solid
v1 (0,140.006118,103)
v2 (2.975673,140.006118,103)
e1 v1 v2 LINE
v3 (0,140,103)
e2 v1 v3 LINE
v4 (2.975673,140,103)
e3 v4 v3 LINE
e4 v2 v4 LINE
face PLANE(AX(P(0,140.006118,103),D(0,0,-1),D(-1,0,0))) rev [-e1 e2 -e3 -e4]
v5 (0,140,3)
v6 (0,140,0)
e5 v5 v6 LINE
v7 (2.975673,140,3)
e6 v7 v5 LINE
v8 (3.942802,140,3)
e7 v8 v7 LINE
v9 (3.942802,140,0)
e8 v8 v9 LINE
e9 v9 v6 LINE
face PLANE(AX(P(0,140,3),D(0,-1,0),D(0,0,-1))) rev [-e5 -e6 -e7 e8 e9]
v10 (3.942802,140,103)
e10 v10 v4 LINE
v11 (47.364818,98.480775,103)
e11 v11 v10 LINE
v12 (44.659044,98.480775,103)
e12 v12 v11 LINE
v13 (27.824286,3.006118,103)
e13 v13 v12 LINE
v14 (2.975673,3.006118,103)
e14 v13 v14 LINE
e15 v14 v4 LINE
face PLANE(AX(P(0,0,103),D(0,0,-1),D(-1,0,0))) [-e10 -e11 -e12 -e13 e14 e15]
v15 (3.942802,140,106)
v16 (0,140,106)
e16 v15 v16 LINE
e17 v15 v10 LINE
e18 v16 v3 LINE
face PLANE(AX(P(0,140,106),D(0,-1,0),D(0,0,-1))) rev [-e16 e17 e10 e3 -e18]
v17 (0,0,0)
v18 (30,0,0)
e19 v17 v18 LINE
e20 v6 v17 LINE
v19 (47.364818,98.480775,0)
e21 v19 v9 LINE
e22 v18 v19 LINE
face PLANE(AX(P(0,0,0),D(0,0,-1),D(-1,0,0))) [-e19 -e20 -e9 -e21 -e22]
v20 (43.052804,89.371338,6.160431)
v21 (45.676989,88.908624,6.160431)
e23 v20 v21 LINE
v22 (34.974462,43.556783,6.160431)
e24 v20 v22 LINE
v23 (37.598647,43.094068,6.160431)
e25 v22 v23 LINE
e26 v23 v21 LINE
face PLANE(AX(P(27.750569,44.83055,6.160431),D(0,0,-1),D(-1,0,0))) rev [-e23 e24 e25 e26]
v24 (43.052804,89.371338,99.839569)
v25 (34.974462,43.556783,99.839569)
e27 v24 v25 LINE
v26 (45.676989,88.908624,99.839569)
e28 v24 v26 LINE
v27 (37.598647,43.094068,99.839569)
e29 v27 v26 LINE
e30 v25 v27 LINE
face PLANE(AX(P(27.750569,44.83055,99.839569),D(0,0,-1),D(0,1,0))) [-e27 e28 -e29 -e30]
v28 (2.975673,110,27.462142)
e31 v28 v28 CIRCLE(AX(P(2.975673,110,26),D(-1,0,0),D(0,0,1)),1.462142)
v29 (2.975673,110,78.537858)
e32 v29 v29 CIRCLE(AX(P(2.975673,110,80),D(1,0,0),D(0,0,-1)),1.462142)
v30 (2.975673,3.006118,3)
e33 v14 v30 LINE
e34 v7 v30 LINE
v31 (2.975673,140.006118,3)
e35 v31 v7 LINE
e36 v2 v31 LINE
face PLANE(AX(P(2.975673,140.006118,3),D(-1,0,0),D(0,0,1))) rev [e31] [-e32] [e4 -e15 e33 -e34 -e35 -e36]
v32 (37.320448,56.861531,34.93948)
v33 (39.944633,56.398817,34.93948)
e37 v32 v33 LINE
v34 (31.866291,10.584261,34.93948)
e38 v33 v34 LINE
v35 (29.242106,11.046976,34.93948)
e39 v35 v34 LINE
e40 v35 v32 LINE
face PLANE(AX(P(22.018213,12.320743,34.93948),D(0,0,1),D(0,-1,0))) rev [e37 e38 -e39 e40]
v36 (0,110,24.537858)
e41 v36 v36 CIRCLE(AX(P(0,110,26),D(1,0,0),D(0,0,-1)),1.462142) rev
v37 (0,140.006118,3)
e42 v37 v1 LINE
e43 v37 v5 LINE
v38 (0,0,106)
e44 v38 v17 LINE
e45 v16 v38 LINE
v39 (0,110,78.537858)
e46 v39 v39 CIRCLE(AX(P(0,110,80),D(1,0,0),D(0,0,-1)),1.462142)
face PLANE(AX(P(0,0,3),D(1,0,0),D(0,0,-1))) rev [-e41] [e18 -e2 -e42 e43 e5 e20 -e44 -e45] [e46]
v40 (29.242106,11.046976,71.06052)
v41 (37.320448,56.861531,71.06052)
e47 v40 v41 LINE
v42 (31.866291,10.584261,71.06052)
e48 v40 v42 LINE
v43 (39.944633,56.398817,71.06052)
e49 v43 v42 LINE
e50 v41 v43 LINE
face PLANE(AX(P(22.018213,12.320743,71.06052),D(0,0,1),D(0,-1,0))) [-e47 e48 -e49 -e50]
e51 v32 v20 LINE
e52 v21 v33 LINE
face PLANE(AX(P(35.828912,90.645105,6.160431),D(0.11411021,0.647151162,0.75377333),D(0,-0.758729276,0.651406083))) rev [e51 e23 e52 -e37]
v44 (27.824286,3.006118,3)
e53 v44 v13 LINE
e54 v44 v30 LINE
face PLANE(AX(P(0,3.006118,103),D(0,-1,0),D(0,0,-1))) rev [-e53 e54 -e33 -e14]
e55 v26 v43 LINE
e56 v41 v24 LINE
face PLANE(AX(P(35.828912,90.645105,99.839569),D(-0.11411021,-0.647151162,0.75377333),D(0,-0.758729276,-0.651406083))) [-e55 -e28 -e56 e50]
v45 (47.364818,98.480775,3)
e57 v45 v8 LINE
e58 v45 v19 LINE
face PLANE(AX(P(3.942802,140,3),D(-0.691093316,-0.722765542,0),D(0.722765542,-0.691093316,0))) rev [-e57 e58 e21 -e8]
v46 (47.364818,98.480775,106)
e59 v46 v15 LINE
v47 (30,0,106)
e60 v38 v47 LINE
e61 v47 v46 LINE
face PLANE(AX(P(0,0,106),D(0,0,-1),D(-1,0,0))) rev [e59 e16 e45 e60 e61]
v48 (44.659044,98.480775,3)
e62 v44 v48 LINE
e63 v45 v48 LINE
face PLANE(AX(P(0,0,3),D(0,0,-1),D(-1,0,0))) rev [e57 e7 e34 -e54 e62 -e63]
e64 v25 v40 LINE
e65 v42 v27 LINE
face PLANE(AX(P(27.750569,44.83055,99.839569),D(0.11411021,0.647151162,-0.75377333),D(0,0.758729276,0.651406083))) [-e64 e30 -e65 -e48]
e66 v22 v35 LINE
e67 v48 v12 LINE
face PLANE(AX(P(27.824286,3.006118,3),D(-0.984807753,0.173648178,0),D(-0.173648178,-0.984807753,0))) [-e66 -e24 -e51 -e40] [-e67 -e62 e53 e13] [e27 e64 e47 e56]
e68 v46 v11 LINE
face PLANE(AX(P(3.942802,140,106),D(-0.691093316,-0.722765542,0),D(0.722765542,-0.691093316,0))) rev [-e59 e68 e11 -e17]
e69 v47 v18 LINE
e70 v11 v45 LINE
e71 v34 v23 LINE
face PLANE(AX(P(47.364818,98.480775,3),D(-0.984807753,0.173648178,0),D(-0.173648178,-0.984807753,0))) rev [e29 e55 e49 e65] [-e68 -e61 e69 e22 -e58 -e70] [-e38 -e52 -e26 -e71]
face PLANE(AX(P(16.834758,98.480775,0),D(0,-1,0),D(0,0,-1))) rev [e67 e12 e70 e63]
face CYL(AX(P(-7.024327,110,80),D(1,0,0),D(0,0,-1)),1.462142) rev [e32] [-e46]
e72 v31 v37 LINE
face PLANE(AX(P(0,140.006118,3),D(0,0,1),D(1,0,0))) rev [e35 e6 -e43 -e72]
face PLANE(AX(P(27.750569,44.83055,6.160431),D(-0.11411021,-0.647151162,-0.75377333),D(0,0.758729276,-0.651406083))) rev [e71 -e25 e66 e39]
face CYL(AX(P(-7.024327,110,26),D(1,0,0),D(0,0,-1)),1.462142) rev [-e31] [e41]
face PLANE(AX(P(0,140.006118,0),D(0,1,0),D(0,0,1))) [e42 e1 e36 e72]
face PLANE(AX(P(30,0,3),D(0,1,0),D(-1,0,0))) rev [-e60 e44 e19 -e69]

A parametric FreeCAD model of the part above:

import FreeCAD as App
import Part
import Sketcher
Q = App.Units.Quantity


def add_polygon(sketch, points):
    """Adds a closed chain of lines whose ends are joined by coincident constraints."""
    first, n = sketch.GeometryCount, len(points)
    for a, b in zip(points, points[1:] + points[:1]):
        sketch.addGeometry(Part.LineSegment(App.Vector(*a, 0), App.Vector(*b, 0)), False)
    for i in range(n):
        sketch.addConstraint(Sketcher.Constraint("Coincident", first + i, 2, first + (i + 1) % n, 1))

doc = App.newDocument("Part")
body = doc.addObject("PartDesign::Body", "Body")

sketch1 = body.newObject("Sketcher::SketchObject", "Sketch")
sketch1.AttachmentSupport = (doc.getObject("XY_Plane"), [""])
sketch1.MapMode = "FlatFace"
add_polygon(sketch1, [(0, 140), (0, 0), (30, 0), (47.4, 98.5), (3.9, 140)])
sketch1.addConstraint([
    Sketcher.Constraint("Vertical", 0),
    Sketcher.Constraint("Horizontal", 1),
    Sketcher.Constraint("Horizontal", 4),
    Sketcher.Constraint("Coincident", 0, 2, -1, 1),
    Sketcher.Constraint("DistanceX", 1, 1, 1, 2, Q("30 mm")),
    Sketcher.Constraint("DistanceY", 0, 2, 0, 1, Q("140 mm")),
    Sketcher.Constraint("Angle", 2, Q("80 deg")),
    Sketcher.Constraint("Distance", 2, Q("100 mm")),
    Sketcher.Constraint("DistanceX", 4, 2, 4, 1, Q("3.942802 mm")),
])
pad1 = body.newObject("PartDesign::Pad", "Pad")
pad1.Profile = sketch1
pad1.Length = 3

sketch2 = body.newObject("Sketcher::SketchObject", "Sketch001")
sketch2.AttachmentSupport = (doc.getObject("XY_Plane"), [""])
sketch2.MapMode = "FlatFace"
sketch2.AttachmentOffset = App.Placement(App.Vector(0, 0, 3), App.Rotation())
add_polygon(sketch2, [(0, 3), (0, 0), (30, 0), (30.5, 3)])
sketch2.addConstraint([
    Sketcher.Constraint("Vertical", 0),
    Sketcher.Constraint("Horizontal", 1),
    Sketcher.Constraint("Horizontal", 3),
    Sketcher.Constraint("Coincident", 0, 2, -1, 1),
    Sketcher.Constraint("DistanceX", 1, 1, 1, 2, Q("30 mm")),
    Sketcher.Constraint("Angle", 2, Q("80 deg")),
    Sketcher.Constraint("DistanceX", 3, 2, 3, 1, Q("30.53006 mm")),
])
pad2 = body.newObject("PartDesign::Pad", "Pad001")
pad2.Profile = sketch2
pad2.Length = 100
doc.recompute()

linearpattern = body.newObject("PartDesign::LinearPattern", "LinearPattern")
linearpattern.Originals = [pad1]
linearpattern.Direction = (doc.getObject("Z_Axis"), [""])
linearpattern.Mode = "offset"
linearpattern.Offset = 103
linearpattern.Occurrences = 2
body.Tip = linearpattern

sketch3 = body.newObject("Sketcher::SketchObject", "Sketch002")
sketch3.AttachmentSupport = (doc.getObject("XZ_Plane"), [""])
sketch3.MapMode = "FlatFace"
sketch3.AttachmentOffset = App.Placement(App.Vector(0, 0, -3.006118), App.Rotation())
add_polygon(sketch3, [(0, 3), (0, 103), (3, 103), (3, 3)])
sketch3.addConstraint([
    Sketcher.Constraint("Vertical", 0),
    Sketcher.Constraint("Horizontal", 1),
    Sketcher.Constraint("Vertical", 2),
    Sketcher.Constraint("Horizontal", 3),
    Sketcher.Constraint("PointOnObject", 0, 2, -2),
    Sketcher.Constraint("DistanceY", 0, 1, 0, 2, Q("100 mm")),
    Sketcher.Constraint("DistanceY", -1, 1, 0, 2, Q("103 mm")),
    Sketcher.Constraint("DistanceX", 1, 1, 1, 2, Q("2.975673 mm")),
])
pad3 = body.newObject("PartDesign::Pad", "Pad002")
pad3.Profile = sketch3
pad3.Length = 137
pad3.Reversed = True

sketch4 = body.newObject("Sketcher::SketchObject", "Sketch003")
sketch4.AttachmentSupport = (doc.getObject("XZ_Plane"), [""])
sketch4.MapMode = "FlatFace"
sketch4.AttachmentOffset = App.Placement(App.Vector(0, 0, -3.006118), App.Rotation())
add_polygon(sketch4, [(27.8, 3), (27.8, 103), (30.5, 103), (30.5, 3)])
sketch4.addConstraint([
    Sketcher.Constraint("Vertical", 0),
    Sketcher.Constraint("Horizontal", 1),
    Sketcher.Constraint("Vertical", 2),
    Sketcher.Constraint("Horizontal", 3),
    Sketcher.Constraint("DistanceY", 0, 1, 0, 2, Q("100 mm")),
    Sketcher.Constraint("DistanceY", -1, 1, 0, 2, Q("103 mm")),
    Sketcher.Constraint("DistanceX", 1, 1, 1, 2, Q("2.705774 mm")),
    Sketcher.Constraint("DistanceX", -1, 1, 1, 2, Q("30.53006 mm")),
])

sketch5 = body.newObject("Sketcher::SketchObject", "Sketch004")
sketch5.Placement = App.Placement(App.Vector(29.095389, -5.130302, 0), App.Rotation(App.Vector(0.173648178, 0.984807753, 0), App.Vector(0, 0, 1), App.Vector(0.984807753, -0.173648178, 0), "ZXY"))
sketch5.addGeometry(Part.LineSegment(App.Vector(8, 103, 0), App.Vector(105, 103, 0)), False)
sketch5.addConstraint([
    Sketcher.Constraint("Horizontal", 0),
    Sketcher.Constraint("DistanceY", -1, 1, 0, 1, Q("103 mm")),
    Sketcher.Constraint("DistanceX", 0, 1, 0, 2, Q("96.947508 mm")),
    Sketcher.Constraint("DistanceX", -1, 1, 0, 1, Q("8.261937 mm")),
])
doc.recompute()

additivepipe = body.newObject("PartDesign::AdditivePipe", "AdditivePipe")
additivepipe.Profile = sketch4
additivepipe.Spine = (sketch5, ["Edge1"])

sketch6 = body.newObject("Sketcher::SketchObject", "Sketch005")
sketch6.AttachmentSupport = (doc.getObject("YZ_Plane"), [""])
sketch6.MapMode = "FlatFace"
sketch6.AttachmentOffset = App.Placement(App.Vector(0, 0, 2.975673), App.Rotation())
sketch6.addGeometry(Part.Circle(App.Vector(110, 80, 0), App.Vector(0, 0, 1), 1.5), False)
sketch6.addConstraint([
    Sketcher.Constraint("DistanceX", -1, 1, 0, 3, Q("110 mm")),
    Sketcher.Constraint("DistanceY", -1, 1, 0, 3, Q("80 mm")),
    Sketcher.Constraint("Diameter", 0, Q("2.924283 mm")),
])
pocket1 = body.newObject("PartDesign::Pocket", "Pocket")
pocket1.Profile = sketch6
pocket1.Length = 10
doc.recompute()

datumplane = body.newObject("PartDesign::Plane", "DatumPlane")
datumplane.AttachmentSupport = (doc.getObject("XY_Plane"), [""])
datumplane.MapMode = "FlatFace"
datumplane.AttachmentOffset = App.Placement(App.Vector(0, 0, 53), App.Rotation())
mirrored = body.newObject("PartDesign::Mirrored", "Mirrored")
mirrored.Originals = [pocket1]
mirrored.MirrorPlane = (datumplane, [""])
body.Tip = mirrored

sketch7 = body.newObject("Sketcher::SketchObject", "Sketch006")
sketch7.Placement = App.Placement(App.Vector(29.095389, -5.130302, 0), App.Rotation(App.Vector(0, 0, -1), App.Vector(0.173648178, 0.984807753, 0), App.Vector(0.984807753, -0.173648178, 0), "ZXY"))
add_polygon(sketch7, [(-6, 49), (-6, 95), (-35, 62), (-35, 16)])
sketch7.addConstraint([
    Sketcher.Constraint("Vertical", 0),
    Sketcher.Constraint("Vertical", 2),
    Sketcher.Constraint("Parallel", 1, 3),
    Sketcher.Constraint("DistanceY", 0, 1, 0, 2, Q("46.521319 mm")),
    Sketcher.Constraint("Distance", 1, Q("43.794762 mm")),
    Sketcher.Constraint("DistanceX", 0, 2, -1, 1, Q("6.160431 mm")),
    Sketcher.Constraint("DistanceX", 1, 2, -1, 1, Q("34.93948 mm")),
    Sketcher.Constraint("DistanceY", -1, 1, 3, 2, Q("48.968309 mm")),
])
pocket2 = body.newObject("PartDesign::Pocket", "Pocket001")
pocket2.Profile = sketch7
pocket2.Length = 10
doc.recompute()

datumplane2 = body.newObject("PartDesign::Plane", "DatumPlane001")
datumplane2.AttachmentSupport = (doc.getObject("XY_Plane"), [""])
datumplane2.MapMode = "FlatFace"
datumplane2.AttachmentOffset = App.Placement(App.Vector(0, 0, 53), App.Rotation())
mirrored2 = body.newObject("PartDesign::Mirrored", "Mirrored001")
mirrored2.Originals = [pocket2]
mirrored2.MirrorPlane = (datumplane2, [""])
body.Tip = mirrored2

doc.recompute()
